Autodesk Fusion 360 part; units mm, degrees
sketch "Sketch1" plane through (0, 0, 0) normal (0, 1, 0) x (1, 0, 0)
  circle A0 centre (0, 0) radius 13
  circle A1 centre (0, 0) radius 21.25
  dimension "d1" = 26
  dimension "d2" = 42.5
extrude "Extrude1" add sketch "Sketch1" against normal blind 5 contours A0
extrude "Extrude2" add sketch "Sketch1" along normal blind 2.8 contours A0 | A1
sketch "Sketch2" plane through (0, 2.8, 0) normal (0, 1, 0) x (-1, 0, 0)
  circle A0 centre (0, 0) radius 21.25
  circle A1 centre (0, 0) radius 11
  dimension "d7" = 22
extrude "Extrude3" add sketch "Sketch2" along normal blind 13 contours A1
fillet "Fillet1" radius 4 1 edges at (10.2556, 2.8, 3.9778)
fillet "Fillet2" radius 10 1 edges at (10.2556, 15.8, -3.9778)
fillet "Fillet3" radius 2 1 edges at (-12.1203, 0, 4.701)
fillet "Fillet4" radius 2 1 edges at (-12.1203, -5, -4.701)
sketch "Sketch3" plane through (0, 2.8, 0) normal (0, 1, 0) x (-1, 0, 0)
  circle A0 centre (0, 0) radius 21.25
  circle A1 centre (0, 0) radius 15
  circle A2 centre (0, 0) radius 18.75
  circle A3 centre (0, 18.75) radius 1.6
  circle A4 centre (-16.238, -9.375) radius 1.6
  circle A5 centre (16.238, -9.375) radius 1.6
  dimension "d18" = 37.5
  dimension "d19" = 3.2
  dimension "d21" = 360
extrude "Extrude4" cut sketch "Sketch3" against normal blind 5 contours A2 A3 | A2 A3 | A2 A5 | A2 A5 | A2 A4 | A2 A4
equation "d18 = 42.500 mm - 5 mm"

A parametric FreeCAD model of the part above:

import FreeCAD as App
import Part
import Sketcher
from FreeCAD import Vector


def edges_at(feature, points):
    """Names of the edges that pass closest to the given points."""
    edges = feature.Shape.Edges
    near = lambda p: min(range(len(edges)), key=lambda i: edges[i].distToShape(Part.Vertex(*p))[0])
    return sorted({f"Edge{near(p) + 1}" for p in points})

doc = App.newDocument("Part")
body = doc.addObject("PartDesign::Body", "Body")

# Sketch on XZ plane
sketch1 = body.newObject("Sketcher::SketchObject", "Sketch")
sketch1.AttachmentSupport = (doc.getObject("XZ_Plane"), [""])
sketch1.MapMode = "FlatFace"
sketch1.addGeometry(Part.Circle(Vector(0, 0, 0), Vector(0, 0, 1), 13), False)
sketch1.addConstraint([
    Sketcher.Constraint("Coincident", 0, 3, -1, 1),
    Sketcher.Constraint("Diameter", 0, 26.0),
])
pad1 = body.newObject("PartDesign::Pad", "Pad")
pad1.Profile = sketch1
pad1.Length = 5

# Sketch on XZ plane
sketch2 = body.newObject("Sketcher::SketchObject", "Sketch001")
sketch2.AttachmentSupport = (doc.getObject("XZ_Plane"), [""])
sketch2.MapMode = "FlatFace"
sketch2.addGeometry(Part.Circle(Vector(0, 0, 0), Vector(0, 0, 1), 21), False)
sketch2.addConstraint([
    Sketcher.Constraint("Coincident", 0, 3, -1, 1),
    Sketcher.Constraint("Diameter", 0, 42.5),
])
pad2 = body.newObject("PartDesign::Pad", "Pad001")
pad2.Profile = sketch2
pad2.Length = 2.8
pad2.Reversed = True

# Sketch on XZ plane
sketch3 = body.newObject("Sketcher::SketchObject", "Sketch002")
sketch3.AttachmentSupport = (doc.getObject("XZ_Plane"), [""])
sketch3.MapMode = "FlatFace"
sketch3.AttachmentOffset = App.Placement(Vector(0, 0, -2.8), App.Rotation())
sketch3.addGeometry(Part.Circle(Vector(0, 0, 0), Vector(0, 0, 1), 11), False)
sketch3.addConstraint([
    Sketcher.Constraint("Coincident", 0, 3, -1, 1),
    Sketcher.Constraint("Diameter", 0, 22.0),
])
pad3 = body.newObject("PartDesign::Pad", "Pad002")
pad3.Profile = sketch3
pad3.Length = 13
pad3.Reversed = True
doc.recompute()

fillet = body.newObject("PartDesign::Fillet", "Fillet")
fillet.Base = (pad3, edges_at(pad3, [(10.256, 2.8, 3.978)]))
fillet.Radius = 4
doc.recompute()

fillet2 = body.newObject("PartDesign::Fillet", "Fillet001")
fillet2.Base = (fillet, edges_at(fillet, [(10.256, 15.8, -3.978)]))
fillet2.Radius = 10
doc.recompute()

fillet3 = body.newObject("PartDesign::Fillet", "Fillet002")
fillet3.Base = (fillet2, edges_at(fillet2, [(-12.12, 0, 4.701)]))
fillet3.Radius = 2
doc.recompute()

fillet4 = body.newObject("PartDesign::Fillet", "Fillet003")
fillet4.Base = (fillet3, edges_at(fillet3, [(-12.12, -5, -4.701)]))
fillet4.Radius = 2

# Sketch on XZ plane
sketch4 = body.newObject("Sketcher::SketchObject", "Sketch003")
sketch4.AttachmentSupport = (doc.getObject("XZ_Plane"), [""])
sketch4.MapMode = "FlatFace"
sketch4.AttachmentOffset = App.Placement(Vector(0, 0, -2.8), App.Rotation())
sketch4.addGeometry([
    Part.Circle(Vector(0, 18.8, 0), Vector(0, 0, 1), 1.6),
    Part.Circle(Vector(-16.2, -9.4, 0), Vector(0, 0, 1), 1.6),
    Part.Circle(Vector(16.2, -9.4, 0), Vector(0, 0, 1), 1.6),
], False)
sketch4.addConstraint([
    Sketcher.Constraint("Equal", 0, 1),
    Sketcher.Constraint("Equal", 1, 2),
    Sketcher.Constraint("Symmetric", 1, 3, 2, 3, -2),
    Sketcher.Constraint("PointOnObject", 0, 3, -2),
    Sketcher.Constraint("Diameter", 0, 3.2),
    Sketcher.Constraint("DistanceY", -1, 1, 0, 3, 18.75),
    Sketcher.Constraint("DistanceX", 1, 3, -1, 1, 16.238),
    Sketcher.Constraint("DistanceY", 1, 3, -1, 1, 9.375),
])
pocket1 = body.newObject("PartDesign::Pocket", "Pocket")
pocket1.Profile = sketch4
pocket1.Length = 5
pocket1.Reversed = True

doc.recompute()
